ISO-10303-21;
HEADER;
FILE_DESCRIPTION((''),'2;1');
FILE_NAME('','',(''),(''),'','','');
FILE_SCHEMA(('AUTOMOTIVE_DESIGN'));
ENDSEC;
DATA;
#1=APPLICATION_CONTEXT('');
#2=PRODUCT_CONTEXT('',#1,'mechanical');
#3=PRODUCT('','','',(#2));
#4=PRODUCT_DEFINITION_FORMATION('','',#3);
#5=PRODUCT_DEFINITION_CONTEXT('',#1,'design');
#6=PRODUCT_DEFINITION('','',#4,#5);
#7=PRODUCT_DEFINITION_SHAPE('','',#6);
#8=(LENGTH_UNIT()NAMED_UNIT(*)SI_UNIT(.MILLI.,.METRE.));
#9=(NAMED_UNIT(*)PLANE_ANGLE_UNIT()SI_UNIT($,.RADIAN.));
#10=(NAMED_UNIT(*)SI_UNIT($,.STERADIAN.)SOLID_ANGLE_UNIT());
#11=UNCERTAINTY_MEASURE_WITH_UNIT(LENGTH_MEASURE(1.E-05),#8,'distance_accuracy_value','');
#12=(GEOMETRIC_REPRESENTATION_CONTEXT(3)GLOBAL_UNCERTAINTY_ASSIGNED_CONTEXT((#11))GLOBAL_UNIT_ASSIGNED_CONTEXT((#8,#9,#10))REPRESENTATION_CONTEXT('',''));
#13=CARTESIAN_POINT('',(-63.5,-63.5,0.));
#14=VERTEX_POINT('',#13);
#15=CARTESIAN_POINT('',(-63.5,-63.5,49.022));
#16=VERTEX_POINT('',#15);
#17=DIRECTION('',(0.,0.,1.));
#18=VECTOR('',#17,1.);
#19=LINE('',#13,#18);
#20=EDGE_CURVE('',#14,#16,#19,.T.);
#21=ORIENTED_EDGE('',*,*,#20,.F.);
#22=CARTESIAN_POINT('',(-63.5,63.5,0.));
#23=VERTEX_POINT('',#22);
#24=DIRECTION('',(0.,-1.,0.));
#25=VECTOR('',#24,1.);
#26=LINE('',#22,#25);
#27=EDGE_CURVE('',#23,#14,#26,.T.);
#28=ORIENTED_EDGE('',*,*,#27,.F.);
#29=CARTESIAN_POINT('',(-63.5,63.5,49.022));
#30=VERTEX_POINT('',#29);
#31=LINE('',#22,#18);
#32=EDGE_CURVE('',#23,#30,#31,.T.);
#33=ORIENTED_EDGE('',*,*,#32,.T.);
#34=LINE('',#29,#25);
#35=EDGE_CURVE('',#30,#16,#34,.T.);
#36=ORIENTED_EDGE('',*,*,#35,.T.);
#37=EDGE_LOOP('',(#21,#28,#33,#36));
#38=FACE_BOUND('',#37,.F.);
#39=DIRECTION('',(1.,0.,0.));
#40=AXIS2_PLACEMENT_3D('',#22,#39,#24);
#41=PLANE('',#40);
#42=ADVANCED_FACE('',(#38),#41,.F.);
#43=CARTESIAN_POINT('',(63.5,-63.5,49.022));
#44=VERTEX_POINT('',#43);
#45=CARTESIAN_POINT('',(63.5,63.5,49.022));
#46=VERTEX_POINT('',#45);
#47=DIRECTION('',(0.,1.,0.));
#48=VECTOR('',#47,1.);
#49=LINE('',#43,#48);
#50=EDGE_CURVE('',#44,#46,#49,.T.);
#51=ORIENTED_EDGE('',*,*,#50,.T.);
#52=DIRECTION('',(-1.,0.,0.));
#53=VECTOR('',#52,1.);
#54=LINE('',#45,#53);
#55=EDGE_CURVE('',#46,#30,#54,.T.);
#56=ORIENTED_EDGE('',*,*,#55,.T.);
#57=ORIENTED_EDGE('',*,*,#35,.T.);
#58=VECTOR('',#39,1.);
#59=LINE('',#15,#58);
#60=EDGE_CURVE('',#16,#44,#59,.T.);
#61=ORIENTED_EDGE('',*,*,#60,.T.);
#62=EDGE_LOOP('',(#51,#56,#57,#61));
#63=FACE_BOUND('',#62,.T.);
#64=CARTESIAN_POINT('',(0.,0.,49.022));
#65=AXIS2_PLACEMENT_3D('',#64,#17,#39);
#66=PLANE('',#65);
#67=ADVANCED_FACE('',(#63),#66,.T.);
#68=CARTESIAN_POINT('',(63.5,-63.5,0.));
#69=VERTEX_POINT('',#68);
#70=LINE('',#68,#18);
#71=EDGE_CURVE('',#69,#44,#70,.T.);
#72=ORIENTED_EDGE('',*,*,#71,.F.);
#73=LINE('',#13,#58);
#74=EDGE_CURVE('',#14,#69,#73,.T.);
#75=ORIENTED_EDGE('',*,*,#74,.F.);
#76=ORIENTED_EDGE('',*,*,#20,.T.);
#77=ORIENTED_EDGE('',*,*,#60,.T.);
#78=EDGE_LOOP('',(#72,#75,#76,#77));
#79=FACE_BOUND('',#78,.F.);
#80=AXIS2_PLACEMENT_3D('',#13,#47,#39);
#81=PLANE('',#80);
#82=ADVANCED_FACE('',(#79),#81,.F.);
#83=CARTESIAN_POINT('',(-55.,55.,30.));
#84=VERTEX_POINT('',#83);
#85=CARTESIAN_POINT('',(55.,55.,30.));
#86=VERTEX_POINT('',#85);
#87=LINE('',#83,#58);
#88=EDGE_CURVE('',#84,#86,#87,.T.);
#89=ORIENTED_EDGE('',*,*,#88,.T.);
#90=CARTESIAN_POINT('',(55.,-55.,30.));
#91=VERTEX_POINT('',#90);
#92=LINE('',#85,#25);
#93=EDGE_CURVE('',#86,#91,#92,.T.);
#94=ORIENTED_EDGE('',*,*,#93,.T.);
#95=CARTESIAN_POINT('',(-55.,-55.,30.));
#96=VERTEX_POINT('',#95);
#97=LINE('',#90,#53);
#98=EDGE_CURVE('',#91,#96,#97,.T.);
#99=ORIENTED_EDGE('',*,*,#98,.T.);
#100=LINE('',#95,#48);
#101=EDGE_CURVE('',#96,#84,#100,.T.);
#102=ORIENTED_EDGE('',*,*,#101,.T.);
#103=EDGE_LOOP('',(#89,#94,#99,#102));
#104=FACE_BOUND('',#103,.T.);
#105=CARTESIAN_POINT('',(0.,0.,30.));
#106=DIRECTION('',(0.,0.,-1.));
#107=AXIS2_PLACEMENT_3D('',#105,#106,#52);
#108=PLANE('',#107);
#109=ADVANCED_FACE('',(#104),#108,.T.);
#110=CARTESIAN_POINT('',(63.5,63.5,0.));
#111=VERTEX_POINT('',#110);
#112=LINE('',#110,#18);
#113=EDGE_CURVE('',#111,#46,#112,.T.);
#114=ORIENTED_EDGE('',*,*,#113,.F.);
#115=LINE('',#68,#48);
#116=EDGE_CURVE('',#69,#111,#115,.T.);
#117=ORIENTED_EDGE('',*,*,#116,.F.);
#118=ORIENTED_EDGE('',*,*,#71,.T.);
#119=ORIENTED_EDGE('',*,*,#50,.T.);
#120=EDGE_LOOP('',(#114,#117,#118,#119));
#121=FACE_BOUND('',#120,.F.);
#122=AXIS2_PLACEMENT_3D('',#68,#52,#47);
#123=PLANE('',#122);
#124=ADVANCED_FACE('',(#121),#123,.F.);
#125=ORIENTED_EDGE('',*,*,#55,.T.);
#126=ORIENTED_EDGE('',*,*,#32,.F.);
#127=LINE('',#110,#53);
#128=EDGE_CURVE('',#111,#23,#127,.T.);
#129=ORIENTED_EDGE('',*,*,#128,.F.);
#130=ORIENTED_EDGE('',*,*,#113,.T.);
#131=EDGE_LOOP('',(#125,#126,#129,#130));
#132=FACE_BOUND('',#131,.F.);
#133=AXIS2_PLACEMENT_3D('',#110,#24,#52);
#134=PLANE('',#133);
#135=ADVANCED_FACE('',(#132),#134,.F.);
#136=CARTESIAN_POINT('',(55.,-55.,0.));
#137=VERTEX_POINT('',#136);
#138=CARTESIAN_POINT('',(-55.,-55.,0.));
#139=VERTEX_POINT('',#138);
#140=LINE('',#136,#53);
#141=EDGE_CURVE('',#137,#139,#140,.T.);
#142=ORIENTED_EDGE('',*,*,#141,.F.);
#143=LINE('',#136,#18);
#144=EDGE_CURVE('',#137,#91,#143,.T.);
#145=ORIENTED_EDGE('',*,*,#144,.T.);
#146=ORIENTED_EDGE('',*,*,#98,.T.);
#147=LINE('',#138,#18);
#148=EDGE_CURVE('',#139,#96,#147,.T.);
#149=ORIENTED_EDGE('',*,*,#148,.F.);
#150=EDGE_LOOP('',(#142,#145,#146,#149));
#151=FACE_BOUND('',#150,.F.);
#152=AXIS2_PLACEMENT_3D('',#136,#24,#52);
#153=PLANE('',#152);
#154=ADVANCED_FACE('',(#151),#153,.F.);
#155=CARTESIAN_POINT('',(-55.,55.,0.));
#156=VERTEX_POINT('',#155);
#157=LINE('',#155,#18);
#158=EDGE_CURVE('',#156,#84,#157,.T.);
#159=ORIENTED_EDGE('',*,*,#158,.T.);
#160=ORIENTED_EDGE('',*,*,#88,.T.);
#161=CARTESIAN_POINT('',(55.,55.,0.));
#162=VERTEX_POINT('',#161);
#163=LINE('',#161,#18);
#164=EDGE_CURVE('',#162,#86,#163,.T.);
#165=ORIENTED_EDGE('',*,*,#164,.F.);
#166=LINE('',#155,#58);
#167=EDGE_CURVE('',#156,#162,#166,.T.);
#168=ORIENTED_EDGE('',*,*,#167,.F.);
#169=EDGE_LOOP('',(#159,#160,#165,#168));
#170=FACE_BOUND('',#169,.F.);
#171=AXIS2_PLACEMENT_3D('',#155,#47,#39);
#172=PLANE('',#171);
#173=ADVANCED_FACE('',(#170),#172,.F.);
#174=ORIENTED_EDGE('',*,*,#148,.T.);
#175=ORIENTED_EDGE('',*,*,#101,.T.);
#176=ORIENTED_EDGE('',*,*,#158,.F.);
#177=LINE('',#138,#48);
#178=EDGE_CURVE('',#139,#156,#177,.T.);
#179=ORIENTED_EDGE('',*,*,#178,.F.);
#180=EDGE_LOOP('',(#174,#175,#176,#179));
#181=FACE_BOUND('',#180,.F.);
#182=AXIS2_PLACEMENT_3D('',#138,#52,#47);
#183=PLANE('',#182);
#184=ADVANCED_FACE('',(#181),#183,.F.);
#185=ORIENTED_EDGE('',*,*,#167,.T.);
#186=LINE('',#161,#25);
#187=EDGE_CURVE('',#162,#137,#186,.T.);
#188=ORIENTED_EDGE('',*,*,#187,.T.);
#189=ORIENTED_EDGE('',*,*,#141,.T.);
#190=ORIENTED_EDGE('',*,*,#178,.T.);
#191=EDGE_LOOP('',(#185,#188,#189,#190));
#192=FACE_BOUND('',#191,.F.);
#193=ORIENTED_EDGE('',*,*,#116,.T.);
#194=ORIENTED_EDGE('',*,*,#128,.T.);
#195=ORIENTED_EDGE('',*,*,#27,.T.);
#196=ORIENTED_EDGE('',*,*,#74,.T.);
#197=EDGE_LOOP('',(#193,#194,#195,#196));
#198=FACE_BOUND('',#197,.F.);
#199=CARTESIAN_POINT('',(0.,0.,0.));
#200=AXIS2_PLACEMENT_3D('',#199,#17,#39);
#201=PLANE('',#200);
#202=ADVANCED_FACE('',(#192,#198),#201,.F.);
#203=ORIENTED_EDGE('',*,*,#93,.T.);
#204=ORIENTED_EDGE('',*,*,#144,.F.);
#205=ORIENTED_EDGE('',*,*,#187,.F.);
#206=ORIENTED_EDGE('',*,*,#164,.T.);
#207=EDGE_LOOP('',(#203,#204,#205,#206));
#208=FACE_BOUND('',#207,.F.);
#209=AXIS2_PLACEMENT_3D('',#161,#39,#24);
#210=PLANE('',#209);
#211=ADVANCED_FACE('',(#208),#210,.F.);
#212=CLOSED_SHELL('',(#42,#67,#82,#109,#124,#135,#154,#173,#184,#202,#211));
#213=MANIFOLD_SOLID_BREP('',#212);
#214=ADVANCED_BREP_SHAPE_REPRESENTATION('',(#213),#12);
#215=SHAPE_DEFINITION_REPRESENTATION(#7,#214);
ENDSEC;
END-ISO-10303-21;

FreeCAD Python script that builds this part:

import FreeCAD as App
import Part
import Sketcher
from FreeCAD import Vector
Q = App.Units.Quantity

doc = App.newDocument("Part")
body = doc.addObject("PartDesign::Body", "Body")

# Sketch on XY plane
sketch1 = doc.addObject("Sketcher::SketchObject", "Sketch")
body.addObject(sketch1)
sketch1.AttachmentSupport = (doc.XY_Plane, [""])
sketch1.MapMode = "FlatFace"
sketch1.addGeometry([
    Part.LineSegment(Vector(-64, 64, 0), Vector(-64, -64, 0)),
    Part.LineSegment(Vector(-64, -64, 0), Vector(64, -64, 0)),
    Part.LineSegment(Vector(64, -64, 0), Vector(64, 64, 0)),
    Part.LineSegment(Vector(64, 64, 0), Vector(-64, 64, 0)),
], False)
sketch1.addConstraint([
    Sketcher.Constraint("Coincident", 0, 2, 1, 1),
    Sketcher.Constraint("Coincident", 1, 2, 2, 1),
    Sketcher.Constraint("Coincident", 2, 2, 3, 1),
    Sketcher.Constraint("Coincident", 3, 2, 0, 1),
    Sketcher.Constraint("Vertical", 0),
    Sketcher.Constraint("Horizontal", 1),
    Sketcher.Constraint("Vertical", 2),
    Sketcher.Constraint("Horizontal", 3),
    Sketcher.Constraint("Symmetric", 0, 2, 2, 2, -1, 1),
    Sketcher.Constraint("Equal", 3, 0),
    Sketcher.Constraint("DistanceX", 1, 1, 1, 2, Q("5 in")),
])
pad1 = doc.addObject("PartDesign::Pad", "Pad")
body.addObject(pad1)
pad1.Profile = sketch1
pad1.Length = Q("1.93 in")

# Sketch on XY plane
sketch2 = doc.addObject("Sketcher::SketchObject", "Sketch001")
body.addObject(sketch2)
sketch2.AttachmentSupport = (doc.XY_Plane, [""])
sketch2.MapMode = "FlatFace"
sketch2.addGeometry([
    Part.LineSegment(Vector(55, 55, 0), Vector(55, -55, 0)),
    Part.LineSegment(Vector(55, -55, 0), Vector(-55, -55, 0)),
    Part.LineSegment(Vector(-55, -55, 0), Vector(-55, 55, 0)),
    Part.LineSegment(Vector(-55, 55, 0), Vector(55, 55, 0)),
], False)
sketch2.addConstraint([
    Sketcher.Constraint("Coincident", 0, 2, 1, 1),
    Sketcher.Constraint("Coincident", 1, 2, 2, 1),
    Sketcher.Constraint("Coincident", 2, 2, 3, 1),
    Sketcher.Constraint("Coincident", 3, 2, 0, 1),
    Sketcher.Constraint("Vertical", 0),
    Sketcher.Constraint("Horizontal", 1),
    Sketcher.Constraint("Vertical", 2),
    Sketcher.Constraint("Horizontal", 3),
    Sketcher.Constraint("Symmetric", 0, 2, 2, 2, -1, 1),
    Sketcher.Constraint("Equal", 3, 0),
    Sketcher.Constraint("DistanceX", 1, 2, 1, 1, Q("4.3307 in")),
])
pocket1 = doc.addObject("PartDesign::Pocket", "Pocket")
body.addObject(pocket1)
pocket1.Profile = sketch2
pocket1.Length = Q("1.1811024 in")
pocket1.Reversed = True

doc.recompute()
